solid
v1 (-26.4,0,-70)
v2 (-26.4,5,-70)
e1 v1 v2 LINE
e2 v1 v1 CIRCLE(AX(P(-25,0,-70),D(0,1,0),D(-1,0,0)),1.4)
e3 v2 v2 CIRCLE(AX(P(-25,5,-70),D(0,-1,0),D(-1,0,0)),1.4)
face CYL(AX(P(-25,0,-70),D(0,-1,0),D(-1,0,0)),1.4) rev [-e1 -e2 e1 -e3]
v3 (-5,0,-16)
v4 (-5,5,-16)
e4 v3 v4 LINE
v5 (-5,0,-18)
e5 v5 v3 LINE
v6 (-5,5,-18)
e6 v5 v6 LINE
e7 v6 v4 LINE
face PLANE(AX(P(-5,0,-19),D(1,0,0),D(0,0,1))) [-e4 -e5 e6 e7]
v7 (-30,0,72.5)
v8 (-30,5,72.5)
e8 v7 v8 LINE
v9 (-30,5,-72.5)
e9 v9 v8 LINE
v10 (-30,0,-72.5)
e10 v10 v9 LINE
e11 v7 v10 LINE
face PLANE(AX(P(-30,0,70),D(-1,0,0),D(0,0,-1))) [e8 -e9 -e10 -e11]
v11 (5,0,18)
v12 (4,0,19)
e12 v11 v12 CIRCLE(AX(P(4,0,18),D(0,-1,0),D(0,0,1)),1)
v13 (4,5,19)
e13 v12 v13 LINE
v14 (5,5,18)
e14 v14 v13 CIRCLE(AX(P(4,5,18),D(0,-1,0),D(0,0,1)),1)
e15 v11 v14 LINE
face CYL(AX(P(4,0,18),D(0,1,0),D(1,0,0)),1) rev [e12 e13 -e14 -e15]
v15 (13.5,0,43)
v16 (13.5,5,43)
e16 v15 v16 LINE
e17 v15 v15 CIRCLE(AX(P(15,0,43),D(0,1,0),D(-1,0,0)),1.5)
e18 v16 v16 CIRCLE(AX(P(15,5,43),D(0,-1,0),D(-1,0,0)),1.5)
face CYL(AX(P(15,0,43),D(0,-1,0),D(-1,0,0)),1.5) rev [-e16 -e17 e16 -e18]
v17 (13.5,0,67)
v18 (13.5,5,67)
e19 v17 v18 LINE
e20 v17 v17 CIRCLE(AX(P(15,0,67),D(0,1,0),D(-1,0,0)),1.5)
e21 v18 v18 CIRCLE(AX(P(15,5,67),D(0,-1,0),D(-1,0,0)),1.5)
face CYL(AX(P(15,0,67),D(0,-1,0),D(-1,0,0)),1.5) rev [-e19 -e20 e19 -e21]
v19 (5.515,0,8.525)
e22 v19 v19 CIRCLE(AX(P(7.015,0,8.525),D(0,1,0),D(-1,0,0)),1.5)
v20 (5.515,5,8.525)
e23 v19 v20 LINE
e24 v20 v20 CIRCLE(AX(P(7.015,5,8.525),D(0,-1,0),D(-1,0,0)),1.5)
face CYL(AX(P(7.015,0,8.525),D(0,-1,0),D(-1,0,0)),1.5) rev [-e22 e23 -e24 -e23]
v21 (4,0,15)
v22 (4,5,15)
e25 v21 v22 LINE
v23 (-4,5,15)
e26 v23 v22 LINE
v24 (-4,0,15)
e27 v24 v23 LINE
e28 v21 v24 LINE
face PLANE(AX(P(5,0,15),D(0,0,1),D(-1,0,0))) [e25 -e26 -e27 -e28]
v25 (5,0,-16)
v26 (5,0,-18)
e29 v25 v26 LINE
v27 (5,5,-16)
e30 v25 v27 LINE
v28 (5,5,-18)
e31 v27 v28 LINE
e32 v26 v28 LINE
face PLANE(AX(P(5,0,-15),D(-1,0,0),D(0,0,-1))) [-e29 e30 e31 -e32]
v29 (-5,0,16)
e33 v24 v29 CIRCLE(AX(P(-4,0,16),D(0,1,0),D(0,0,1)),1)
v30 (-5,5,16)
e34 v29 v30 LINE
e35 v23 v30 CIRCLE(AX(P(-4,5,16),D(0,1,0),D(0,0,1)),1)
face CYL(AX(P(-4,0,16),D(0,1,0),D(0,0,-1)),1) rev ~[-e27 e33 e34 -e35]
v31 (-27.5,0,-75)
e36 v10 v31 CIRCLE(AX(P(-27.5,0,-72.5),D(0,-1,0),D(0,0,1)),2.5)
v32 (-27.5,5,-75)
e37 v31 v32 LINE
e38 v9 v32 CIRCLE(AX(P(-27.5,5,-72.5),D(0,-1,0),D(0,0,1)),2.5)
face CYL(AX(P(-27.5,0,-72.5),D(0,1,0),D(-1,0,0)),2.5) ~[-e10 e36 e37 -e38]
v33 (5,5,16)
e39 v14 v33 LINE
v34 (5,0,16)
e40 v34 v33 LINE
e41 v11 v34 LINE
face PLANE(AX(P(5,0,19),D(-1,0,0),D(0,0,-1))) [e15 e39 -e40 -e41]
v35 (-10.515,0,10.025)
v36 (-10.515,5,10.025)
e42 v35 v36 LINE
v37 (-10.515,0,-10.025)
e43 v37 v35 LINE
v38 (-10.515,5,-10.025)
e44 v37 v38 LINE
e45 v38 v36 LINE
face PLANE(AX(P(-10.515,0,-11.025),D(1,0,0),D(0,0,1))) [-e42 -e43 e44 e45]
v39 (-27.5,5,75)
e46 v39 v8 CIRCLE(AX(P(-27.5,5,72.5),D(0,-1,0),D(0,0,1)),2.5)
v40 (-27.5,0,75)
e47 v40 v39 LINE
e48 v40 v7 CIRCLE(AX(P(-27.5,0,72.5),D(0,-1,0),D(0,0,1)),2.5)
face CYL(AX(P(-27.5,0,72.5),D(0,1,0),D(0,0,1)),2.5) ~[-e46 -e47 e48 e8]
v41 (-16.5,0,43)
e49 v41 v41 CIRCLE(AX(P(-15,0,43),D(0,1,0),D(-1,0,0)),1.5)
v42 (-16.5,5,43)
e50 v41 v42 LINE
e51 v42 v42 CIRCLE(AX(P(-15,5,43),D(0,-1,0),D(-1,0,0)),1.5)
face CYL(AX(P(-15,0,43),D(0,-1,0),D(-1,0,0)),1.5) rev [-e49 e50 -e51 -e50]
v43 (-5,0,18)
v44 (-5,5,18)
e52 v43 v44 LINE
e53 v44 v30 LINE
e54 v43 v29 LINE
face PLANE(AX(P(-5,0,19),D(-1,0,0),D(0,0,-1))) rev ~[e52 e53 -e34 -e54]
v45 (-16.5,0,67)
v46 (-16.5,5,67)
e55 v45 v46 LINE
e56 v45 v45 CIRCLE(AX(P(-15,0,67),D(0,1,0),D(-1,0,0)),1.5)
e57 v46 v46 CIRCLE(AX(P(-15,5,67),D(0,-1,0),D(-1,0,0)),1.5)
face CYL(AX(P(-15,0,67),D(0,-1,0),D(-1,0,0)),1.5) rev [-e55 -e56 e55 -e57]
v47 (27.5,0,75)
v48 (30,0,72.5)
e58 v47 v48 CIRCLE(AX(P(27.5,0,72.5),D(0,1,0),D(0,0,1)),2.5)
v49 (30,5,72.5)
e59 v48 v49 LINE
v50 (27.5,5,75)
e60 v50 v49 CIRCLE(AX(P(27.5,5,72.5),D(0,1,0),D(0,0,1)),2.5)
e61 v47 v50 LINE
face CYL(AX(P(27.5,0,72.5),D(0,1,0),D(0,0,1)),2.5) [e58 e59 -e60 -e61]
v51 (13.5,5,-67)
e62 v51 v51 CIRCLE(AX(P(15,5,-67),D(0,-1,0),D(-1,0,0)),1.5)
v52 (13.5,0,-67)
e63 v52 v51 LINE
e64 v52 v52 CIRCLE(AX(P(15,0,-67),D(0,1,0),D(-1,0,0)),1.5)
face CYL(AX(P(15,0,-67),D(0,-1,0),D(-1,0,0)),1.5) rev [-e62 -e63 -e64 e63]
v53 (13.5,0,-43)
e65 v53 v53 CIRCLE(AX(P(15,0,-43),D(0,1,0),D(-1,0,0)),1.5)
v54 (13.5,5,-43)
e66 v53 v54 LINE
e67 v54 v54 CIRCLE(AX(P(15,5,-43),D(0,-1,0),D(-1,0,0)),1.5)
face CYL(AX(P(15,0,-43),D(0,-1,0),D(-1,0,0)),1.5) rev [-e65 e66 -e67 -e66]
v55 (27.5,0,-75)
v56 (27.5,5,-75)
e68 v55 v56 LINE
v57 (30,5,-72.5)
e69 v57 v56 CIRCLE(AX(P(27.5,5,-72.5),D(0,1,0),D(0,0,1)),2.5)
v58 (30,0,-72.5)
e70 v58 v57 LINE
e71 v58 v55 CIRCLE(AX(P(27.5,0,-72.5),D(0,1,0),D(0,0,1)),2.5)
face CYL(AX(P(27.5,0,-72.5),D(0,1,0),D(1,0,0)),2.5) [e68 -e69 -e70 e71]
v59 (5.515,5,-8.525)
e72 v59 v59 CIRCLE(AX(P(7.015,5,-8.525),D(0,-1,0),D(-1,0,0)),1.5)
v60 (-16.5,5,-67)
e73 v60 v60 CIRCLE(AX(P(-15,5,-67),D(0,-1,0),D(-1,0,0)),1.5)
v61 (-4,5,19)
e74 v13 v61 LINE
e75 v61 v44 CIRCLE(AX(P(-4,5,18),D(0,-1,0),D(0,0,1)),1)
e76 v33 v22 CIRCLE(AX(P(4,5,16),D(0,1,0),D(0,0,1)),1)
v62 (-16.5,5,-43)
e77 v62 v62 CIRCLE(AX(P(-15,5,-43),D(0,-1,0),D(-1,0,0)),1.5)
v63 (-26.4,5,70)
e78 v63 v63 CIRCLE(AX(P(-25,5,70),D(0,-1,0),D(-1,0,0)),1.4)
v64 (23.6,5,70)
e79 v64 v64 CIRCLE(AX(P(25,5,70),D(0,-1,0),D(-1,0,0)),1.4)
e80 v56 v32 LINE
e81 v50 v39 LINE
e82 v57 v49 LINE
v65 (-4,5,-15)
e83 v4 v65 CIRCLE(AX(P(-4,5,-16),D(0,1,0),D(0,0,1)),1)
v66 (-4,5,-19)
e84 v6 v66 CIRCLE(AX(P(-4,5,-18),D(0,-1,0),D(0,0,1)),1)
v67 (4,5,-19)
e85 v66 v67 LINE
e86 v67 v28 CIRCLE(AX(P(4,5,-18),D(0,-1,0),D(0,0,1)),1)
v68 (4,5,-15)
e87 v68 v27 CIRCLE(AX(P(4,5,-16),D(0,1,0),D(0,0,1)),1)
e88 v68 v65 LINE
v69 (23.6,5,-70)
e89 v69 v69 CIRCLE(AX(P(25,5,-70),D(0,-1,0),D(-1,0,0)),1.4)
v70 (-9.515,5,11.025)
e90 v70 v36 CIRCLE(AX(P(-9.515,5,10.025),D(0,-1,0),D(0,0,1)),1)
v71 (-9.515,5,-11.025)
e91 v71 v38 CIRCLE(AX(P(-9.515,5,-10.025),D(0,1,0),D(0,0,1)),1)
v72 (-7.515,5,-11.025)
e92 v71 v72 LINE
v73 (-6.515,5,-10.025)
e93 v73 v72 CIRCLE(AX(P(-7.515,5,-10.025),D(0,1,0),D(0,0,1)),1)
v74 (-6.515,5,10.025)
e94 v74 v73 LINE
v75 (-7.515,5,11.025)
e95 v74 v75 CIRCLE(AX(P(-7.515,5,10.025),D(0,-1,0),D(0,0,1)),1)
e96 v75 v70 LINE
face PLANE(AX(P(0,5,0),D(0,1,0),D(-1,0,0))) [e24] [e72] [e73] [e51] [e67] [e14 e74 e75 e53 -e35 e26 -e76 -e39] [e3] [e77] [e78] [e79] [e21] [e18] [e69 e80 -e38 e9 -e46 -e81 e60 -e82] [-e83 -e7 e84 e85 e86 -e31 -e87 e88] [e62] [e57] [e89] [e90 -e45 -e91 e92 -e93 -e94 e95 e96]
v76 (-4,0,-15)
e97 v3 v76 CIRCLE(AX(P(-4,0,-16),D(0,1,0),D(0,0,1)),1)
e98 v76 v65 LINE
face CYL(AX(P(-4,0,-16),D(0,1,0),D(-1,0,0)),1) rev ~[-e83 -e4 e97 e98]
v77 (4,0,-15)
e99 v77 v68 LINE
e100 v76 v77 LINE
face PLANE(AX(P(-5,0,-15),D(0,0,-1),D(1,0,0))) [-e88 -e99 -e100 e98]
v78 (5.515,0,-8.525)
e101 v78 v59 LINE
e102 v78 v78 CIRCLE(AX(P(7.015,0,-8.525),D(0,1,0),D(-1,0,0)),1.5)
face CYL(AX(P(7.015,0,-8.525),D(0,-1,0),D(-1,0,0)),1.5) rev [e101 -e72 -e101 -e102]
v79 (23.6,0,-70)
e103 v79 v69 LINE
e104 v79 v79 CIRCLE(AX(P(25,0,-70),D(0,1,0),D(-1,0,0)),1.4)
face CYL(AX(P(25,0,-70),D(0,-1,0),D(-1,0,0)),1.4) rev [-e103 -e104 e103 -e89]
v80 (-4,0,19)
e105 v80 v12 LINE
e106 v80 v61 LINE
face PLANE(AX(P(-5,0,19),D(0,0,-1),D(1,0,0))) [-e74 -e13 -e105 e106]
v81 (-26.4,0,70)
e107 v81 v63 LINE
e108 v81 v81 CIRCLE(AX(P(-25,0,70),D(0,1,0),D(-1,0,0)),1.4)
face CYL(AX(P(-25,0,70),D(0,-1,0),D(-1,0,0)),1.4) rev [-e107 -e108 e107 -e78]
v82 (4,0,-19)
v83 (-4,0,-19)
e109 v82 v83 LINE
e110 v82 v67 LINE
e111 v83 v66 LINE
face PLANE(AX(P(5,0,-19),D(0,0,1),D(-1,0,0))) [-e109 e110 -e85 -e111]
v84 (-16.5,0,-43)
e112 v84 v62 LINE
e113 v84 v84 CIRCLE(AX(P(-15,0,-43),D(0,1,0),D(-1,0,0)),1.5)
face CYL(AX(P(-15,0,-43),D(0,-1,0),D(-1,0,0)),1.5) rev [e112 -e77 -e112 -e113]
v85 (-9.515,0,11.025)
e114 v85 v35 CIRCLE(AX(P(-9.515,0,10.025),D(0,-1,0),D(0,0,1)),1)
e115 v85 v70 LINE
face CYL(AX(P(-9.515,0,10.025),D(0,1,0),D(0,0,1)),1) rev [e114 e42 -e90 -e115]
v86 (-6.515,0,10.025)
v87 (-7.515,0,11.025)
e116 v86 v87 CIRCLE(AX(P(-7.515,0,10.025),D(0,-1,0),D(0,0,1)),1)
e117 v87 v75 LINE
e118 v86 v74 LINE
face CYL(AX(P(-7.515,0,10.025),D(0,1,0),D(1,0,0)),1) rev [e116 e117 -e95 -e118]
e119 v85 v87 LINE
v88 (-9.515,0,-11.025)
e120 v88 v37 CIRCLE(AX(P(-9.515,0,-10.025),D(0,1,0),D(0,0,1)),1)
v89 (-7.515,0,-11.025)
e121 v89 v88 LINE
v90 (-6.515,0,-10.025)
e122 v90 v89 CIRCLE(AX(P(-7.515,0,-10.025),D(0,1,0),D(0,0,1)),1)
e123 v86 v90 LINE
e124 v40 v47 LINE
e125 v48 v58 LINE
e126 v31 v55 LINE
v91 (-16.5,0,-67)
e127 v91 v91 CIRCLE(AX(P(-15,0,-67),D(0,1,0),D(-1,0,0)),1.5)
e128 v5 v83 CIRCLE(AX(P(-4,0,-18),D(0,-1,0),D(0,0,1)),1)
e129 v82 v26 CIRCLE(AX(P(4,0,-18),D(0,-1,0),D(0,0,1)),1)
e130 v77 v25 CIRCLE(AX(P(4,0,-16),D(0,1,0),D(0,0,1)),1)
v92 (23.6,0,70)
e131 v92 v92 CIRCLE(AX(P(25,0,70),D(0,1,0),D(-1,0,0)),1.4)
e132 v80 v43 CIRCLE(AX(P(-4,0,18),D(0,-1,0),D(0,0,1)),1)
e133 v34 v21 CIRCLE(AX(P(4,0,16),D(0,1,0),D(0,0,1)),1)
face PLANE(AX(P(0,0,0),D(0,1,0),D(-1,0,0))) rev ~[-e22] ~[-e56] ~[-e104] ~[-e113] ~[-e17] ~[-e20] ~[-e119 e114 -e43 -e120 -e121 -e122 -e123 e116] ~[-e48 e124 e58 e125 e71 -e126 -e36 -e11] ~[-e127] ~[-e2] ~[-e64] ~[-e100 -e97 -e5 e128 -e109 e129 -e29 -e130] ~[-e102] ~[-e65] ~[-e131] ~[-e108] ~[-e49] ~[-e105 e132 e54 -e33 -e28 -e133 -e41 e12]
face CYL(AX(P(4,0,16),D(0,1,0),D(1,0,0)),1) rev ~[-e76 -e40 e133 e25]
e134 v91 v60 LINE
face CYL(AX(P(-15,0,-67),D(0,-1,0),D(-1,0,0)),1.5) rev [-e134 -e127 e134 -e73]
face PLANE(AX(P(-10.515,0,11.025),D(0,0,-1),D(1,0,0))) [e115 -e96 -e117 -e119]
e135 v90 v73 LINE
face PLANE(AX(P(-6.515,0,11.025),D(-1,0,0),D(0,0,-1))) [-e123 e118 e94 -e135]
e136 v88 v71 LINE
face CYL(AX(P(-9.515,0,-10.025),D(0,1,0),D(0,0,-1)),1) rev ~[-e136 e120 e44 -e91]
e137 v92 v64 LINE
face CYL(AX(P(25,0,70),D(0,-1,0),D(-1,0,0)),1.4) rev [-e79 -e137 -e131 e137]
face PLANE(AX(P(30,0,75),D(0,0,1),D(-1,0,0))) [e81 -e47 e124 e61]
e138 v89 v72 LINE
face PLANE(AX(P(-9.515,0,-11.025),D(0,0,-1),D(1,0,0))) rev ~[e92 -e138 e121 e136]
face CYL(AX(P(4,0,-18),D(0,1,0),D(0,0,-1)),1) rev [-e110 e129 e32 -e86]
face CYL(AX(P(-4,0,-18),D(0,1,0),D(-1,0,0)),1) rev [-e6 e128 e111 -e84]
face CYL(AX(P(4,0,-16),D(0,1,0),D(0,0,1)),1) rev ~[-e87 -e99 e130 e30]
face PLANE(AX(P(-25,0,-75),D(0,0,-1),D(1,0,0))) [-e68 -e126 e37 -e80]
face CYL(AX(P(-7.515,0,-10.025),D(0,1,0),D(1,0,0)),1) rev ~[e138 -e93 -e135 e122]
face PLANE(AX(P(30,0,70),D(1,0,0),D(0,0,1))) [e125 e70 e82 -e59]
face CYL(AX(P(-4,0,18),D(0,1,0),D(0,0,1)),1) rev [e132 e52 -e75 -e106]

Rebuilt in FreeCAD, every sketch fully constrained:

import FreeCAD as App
import Part
import Sketcher
from FreeCAD import Vector
Q = App.Units.Quantity


def edges_at(feature, points):
    """Names of the edges that pass closest to the given points."""
    edges = feature.Shape.Edges
    near = lambda p: min(range(len(edges)), key=lambda i: edges[i].distToShape(Part.Vertex(*p))[0])
    return sorted({f"Edge{near(p) + 1}" for p in points})


def add_polygon(sketch, points):
    """Adds a closed chain of lines whose ends are joined by coincident constraints."""
    first, n = sketch.GeometryCount, len(points)
    for a, b in zip(points, points[1:] + points[:1]):
        sketch.addGeometry(Part.LineSegment(App.Vector(*a, 0), App.Vector(*b, 0)), False)
    for i in range(n):
        sketch.addConstraint(Sketcher.Constraint("Coincident", first + i, 2, first + (i + 1) % n, 1))

doc = App.newDocument("Part")
body = doc.addObject("PartDesign::Body", "Body")

sketch1 = body.newObject("Sketcher::SketchObject", "Sketch")
sketch1.AttachmentSupport = (doc.getObject("XZ_Plane"), [""])
sketch1.MapMode = "FlatFace"
add_polygon(sketch1, [(30, 75), (30, -75), (-30, -75), (-30, 75)])
sketch1.addGeometry(Part.Circle(Vector(25, 70, 0), Vector(0, 0, 1), 1.4), False)
add_polygon(sketch1, [(5, 15), (5, 19), (-5, 19), (-5, 15)])
sketch1.addGeometry(Part.Circle(Vector(-25, 70, 0), Vector(0, 0, 1), 1.4), False)
sketch1.addGeometry(Part.Circle(Vector(-25, -70, 0), Vector(0, 0, 1), 1.4), False)
add_polygon(sketch1, [(-5, -15), (-5, -19), (5, -19), (5, -15)])
sketch1.addGeometry(Part.Circle(Vector(25, -70, 0), Vector(0, 0, 1), 1.4), False)
add_polygon(sketch1, [(-6.5, -11), (-6.5, 11), (-10.5, 11), (-10.5, -11)])
sketch1.addGeometry(Part.Circle(Vector(7, 8.5, 0), Vector(0, 0, 1), 1.5), False)
sketch1.addGeometry(Part.Circle(Vector(7, -8.5, 0), Vector(0, 0, 1), 1.5), False)
sketch1.addConstraint([
    Sketcher.Constraint("Vertical", 0),
    Sketcher.Constraint("Horizontal", 1),
    Sketcher.Constraint("Vertical", 2),
    Sketcher.Constraint("Horizontal", 3),
    Sketcher.Constraint("Vertical", 5),
    Sketcher.Constraint("Horizontal", 6),
    Sketcher.Constraint("Vertical", 7),
    Sketcher.Constraint("Horizontal", 8),
    Sketcher.Constraint("Vertical", 11),
    Sketcher.Constraint("Horizontal", 12),
    Sketcher.Constraint("Vertical", 13),
    Sketcher.Constraint("Horizontal", 14),
    Sketcher.Constraint("Vertical", 16),
    Sketcher.Constraint("Horizontal", 17),
    Sketcher.Constraint("Vertical", 18),
    Sketcher.Constraint("Horizontal", 19),
    Sketcher.Constraint("Equal", 4, 9),
    Sketcher.Constraint("Equal", 9, 10),
    Sketcher.Constraint("Equal", 10, 15),
    Sketcher.Constraint("Equal", 20, 21),
    Sketcher.Constraint("Symmetric", 4, 3, 10, 3, -1, 1),
    Sketcher.Constraint("Symmetric", 9, 3, 15, 3, -1, 1),
    Sketcher.Constraint("Symmetric", 0, 2, 2, 2, -1, 1),
    Sketcher.Constraint("Symmetric", 5, 2, 11, 2, -1, 1),
    Sketcher.Constraint("Symmetric", 7, 2, 13, 2, -1, 1),
    Sketcher.Constraint("Symmetric", 4, 3, 9, 3, -2),
    Sketcher.Constraint("Symmetric", 20, 3, 21, 3, -1),
    Sketcher.Constraint("Vertical", 7, 2, 11, 2),
    Sketcher.Constraint("Equal", 19, 5),
    Sketcher.Constraint("Diameter", 20, Q("3 mm")),
    Sketcher.Constraint("Diameter", 4, Q("2.8 mm")),
    Sketcher.Constraint("DistanceX", 1, 2, 1, 1, Q("60 mm")),
    Sketcher.Constraint("DistanceX", 17, 2, 17, 1, Q("4 mm")),
    Sketcher.Constraint("DistanceY", 0, 2, 0, 1, Q("150 mm")),
    Sketcher.Constraint("DistanceX", -1, 1, 5, 2, Q("5 mm")),
    Sketcher.Constraint("DistanceX", 15, 3, 0, 2, Q("5 mm")),
    Sketcher.Constraint("DistanceY", 0, 2, 15, 3, Q("5 mm")),
    Sketcher.Constraint("DistanceY", 13, 2, 8, 2, Q("30 mm")),
    Sketcher.Constraint("DistanceY", 16, 1, 16, 2, Q("22.05 mm")),
    Sketcher.Constraint("DistanceY", 20, 3, 16, 2, Q("2.5 mm")),
    Sketcher.Constraint("DistanceY", 18, 2, 21, 3, Q("2.5 mm")),
    Sketcher.Constraint("DistanceX", 16, 2, 20, 3, Q("13.53 mm")),
    Sketcher.Constraint("DistanceX", -1, 1, 20, 3, Q("7.015 mm")),
])
pad1 = body.newObject("PartDesign::Pad", "Pad")
pad1.Profile = sketch1
pad1.Length = 5
pad1.Reversed = True
doc.recompute()

fillet = body.newObject("PartDesign::Fillet", "Fillet")
fillet.Base = (pad1, edges_at(pad1, [
    (-30, 2.5, 75),
    (-30, 2.5, -75),
    (30, 2.5, -75),
    (30, 2.5, 75),
]))
fillet.Radius = 2.5
doc.recompute()

fillet2 = body.newObject("PartDesign::Fillet", "Fillet001")
fillet2.Base = (fillet, edges_at(fillet, [(-6.515, 2.5, 11.025), (-10.515, 2.5, 11.025)]))
fillet2.Radius = 1
doc.recompute()

fillet3 = body.newObject("PartDesign::Fillet", "Fillet002")
fillet3.Base = (fillet2, edges_at(fillet2, [(-6.515, 2.5, -11.025), (-10.515, 2.5, -11.025)]))
fillet3.Radius = 1

sketch2 = body.newObject("Sketcher::SketchObject", "Sketch001")
sketch2.AttachmentSupport = (doc.getObject("XZ_Plane"), [""])
sketch2.MapMode = "FlatFace"
sketch2.addGeometry([
    Part.Circle(Vector(15, 43, 0), Vector(0, 0, 1), 1.5),
    Part.Circle(Vector(-15, 67, 0), Vector(0, 0, 1), 1.5),
    Part.Circle(Vector(15, 67, 0), Vector(0, 0, 1), 1.5),
    Part.Circle(Vector(-15, 43, 0), Vector(0, 0, 1), 1.5),
    Part.Circle(Vector(15, -43, 0), Vector(0, 0, 1), 1.5),
    Part.Circle(Vector(-15, -67, 0), Vector(0, 0, 1), 1.5),
    Part.Circle(Vector(15, -67, 0), Vector(0, 0, 1), 1.5),
    Part.Circle(Vector(-15, -43, 0), Vector(0, 0, 1), 1.5),
], False)
sketch2.addConstraint([
    Sketcher.Constraint("Equal", 0, 1),
    Sketcher.Constraint("Equal", 1, 2),
    Sketcher.Constraint("Equal", 2, 3),
    Sketcher.Constraint("Equal", 3, 4),
    Sketcher.Constraint("Equal", 4, 5),
    Sketcher.Constraint("Equal", 5, 6),
    Sketcher.Constraint("Equal", 6, 7),
    Sketcher.Constraint("Symmetric", 3, 3, 4, 3, -1, 1),
    Sketcher.Constraint("Symmetric", 2, 3, 5, 3, -1, 1),
    Sketcher.Constraint("Symmetric", 1, 3, 6, 3, -1, 1),
    Sketcher.Constraint("Symmetric", 0, 3, 7, 3, -1, 1),
    Sketcher.Constraint("Symmetric", 1, 3, 2, 3, -2),
    Sketcher.Constraint("Symmetric", 0, 3, 3, 3, -2),
    Sketcher.Constraint("Vertical", 0, 3, 2, 3),
    Sketcher.Constraint("Diameter", 0, Q("3 mm")),
    Sketcher.Constraint("DistanceX", 1, 3, 0, 3, Q("30 mm")),
    Sketcher.Constraint("DistanceY", 0, 3, 1, 3, Q("24 mm")),
    Sketcher.Constraint("DistanceY", -1, 1, 0, 3, Q("43 mm")),
])
pocket1 = body.newObject("PartDesign::Pocket", "Pocket")
pocket1.Profile = sketch2
pocket1.Length = 5
doc.recompute()

fillet4 = body.newObject("PartDesign::Fillet", "Fillet003")
fillet4.Base = (pocket1, edges_at(pocket1, [
    (-5, 2.5, -15),
    (5, 2.5, -15),
    (5, 2.5, -19),
    (-5, 2.5, -19),
    (-5, 2.5, 19),
    (5, 2.5, 19),
    (5, 2.5, 15),
    (-5, 2.5, 15),
]))
fillet4.Radius = 1

doc.recompute()
